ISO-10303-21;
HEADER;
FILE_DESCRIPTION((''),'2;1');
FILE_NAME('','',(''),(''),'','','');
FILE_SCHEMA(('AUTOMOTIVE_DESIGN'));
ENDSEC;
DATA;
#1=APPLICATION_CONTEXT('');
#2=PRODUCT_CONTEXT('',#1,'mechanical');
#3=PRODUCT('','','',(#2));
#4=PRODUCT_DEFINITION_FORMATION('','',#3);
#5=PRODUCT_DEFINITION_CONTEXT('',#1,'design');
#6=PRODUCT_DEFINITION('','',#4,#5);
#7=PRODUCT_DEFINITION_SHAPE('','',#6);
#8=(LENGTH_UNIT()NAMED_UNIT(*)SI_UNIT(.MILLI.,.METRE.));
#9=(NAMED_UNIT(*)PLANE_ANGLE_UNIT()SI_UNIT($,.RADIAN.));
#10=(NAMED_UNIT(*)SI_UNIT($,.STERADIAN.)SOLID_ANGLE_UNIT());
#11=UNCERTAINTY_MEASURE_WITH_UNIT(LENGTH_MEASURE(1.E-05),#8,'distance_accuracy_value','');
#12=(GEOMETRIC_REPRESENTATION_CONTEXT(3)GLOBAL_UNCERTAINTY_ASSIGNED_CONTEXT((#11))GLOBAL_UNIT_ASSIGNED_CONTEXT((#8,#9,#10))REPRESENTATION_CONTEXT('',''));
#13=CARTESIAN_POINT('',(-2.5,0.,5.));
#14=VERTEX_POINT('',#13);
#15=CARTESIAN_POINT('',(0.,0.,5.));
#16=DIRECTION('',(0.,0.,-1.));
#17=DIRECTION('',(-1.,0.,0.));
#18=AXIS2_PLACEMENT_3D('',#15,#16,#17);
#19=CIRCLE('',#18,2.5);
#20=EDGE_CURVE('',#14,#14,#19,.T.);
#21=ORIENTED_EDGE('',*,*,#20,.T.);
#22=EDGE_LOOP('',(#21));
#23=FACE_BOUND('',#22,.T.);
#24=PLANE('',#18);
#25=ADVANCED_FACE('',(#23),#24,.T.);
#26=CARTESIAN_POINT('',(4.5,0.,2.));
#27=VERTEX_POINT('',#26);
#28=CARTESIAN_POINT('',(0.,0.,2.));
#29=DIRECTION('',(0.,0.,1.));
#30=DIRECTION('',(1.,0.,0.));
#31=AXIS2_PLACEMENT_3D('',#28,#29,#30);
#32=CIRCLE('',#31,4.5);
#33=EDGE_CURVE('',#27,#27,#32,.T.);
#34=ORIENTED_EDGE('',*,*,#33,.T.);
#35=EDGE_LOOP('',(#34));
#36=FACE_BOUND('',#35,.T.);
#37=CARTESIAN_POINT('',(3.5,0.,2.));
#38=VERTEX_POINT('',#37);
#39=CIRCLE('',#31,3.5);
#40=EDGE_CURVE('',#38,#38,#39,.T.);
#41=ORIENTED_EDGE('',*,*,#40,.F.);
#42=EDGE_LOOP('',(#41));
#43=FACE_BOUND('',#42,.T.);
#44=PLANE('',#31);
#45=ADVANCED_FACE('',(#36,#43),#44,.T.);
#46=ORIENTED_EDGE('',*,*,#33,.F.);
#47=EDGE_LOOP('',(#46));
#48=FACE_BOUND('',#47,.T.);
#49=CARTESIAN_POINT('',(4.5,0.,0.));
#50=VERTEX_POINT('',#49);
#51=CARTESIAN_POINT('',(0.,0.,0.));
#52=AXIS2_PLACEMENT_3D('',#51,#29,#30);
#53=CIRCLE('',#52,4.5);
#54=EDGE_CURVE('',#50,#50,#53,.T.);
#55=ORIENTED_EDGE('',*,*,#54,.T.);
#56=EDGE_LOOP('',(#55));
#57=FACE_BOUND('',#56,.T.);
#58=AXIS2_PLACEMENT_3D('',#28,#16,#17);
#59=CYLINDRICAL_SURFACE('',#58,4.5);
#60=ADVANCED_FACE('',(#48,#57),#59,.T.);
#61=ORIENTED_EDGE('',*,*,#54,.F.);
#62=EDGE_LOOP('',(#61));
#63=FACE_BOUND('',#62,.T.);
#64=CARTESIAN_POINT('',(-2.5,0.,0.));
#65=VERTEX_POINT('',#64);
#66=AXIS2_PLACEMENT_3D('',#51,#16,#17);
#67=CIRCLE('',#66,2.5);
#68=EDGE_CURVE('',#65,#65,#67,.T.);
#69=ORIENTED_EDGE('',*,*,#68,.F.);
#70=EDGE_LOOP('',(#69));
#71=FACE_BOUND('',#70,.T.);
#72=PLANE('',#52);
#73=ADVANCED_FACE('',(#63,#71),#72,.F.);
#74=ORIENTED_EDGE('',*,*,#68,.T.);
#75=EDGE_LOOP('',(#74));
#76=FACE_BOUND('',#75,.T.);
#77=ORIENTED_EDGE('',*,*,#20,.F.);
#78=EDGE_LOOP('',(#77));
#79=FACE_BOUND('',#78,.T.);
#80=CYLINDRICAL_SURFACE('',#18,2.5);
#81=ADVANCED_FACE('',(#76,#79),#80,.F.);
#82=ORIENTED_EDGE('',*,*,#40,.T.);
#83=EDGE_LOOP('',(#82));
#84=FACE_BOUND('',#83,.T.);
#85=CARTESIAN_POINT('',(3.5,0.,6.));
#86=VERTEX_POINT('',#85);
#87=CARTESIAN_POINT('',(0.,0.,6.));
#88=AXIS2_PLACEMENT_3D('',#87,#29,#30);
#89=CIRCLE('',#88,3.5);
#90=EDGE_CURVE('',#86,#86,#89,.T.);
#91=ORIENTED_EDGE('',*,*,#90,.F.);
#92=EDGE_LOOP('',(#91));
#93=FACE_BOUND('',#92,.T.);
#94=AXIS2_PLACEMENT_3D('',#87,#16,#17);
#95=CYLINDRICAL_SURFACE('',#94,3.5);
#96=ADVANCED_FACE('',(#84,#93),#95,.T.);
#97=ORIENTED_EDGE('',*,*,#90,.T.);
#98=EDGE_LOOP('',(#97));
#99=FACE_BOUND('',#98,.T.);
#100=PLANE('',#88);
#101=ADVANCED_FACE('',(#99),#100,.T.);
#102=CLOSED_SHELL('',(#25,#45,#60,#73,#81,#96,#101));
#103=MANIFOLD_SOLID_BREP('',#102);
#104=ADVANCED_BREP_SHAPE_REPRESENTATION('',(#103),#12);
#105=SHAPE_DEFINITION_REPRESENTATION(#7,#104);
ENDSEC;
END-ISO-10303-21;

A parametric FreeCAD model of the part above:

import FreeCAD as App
import Part
import Sketcher
Q = App.Units.Quantity

doc = App.newDocument("Part")
params = doc.addObject("Spreadsheet::Sheet", "Params")
for row, (alias, value) in enumerate([
    ("sketch1_diameter", "9 mm"),
    ("pad1_length", "2 mm"),
    ("sketch2_diameter", "7 mm"),
    ("pad2_length", "4 mm"),
    ("sketch3_diameter", "5 mm"),
    ("pocket1_length", "5 mm"),
], start=1):
    params.set(f"A{row}", alias)
    params.set(f"B{row}", "=" + value)
    params.setAlias(f"B{row}", alias)

body = doc.addObject("PartDesign::Body", "Body")

# Sketch on XY plane
sketch1 = body.newObject("Sketcher::SketchObject", "Sketch")
sketch1.AttachmentSupport = (doc.getObject("XY_Plane"), [""])
sketch1.MapMode = "FlatFace"
sketch1.addGeometry(Part.Circle(App.Vector(0, 0, 0), App.Vector(0, 0, 1), 4.5), False)
sketch1.addConstraint(Sketcher.Constraint("Coincident", 0, 3, -1, 1))
sketch1.addConstraint(Sketcher.Constraint("Diameter", 0, Q("9 mm")))
sketch1.setExpression("Constraints[1]", "Params.sketch1_diameter")
pad1 = body.newObject("PartDesign::Pad", "Pad")
pad1.Profile = sketch1
pad1.setExpression("Length", "Params.pad1_length")

# Sketch on XY plane
sketch2 = body.newObject("Sketcher::SketchObject", "Sketch001")
sketch2.AttachmentSupport = (doc.getObject("XY_Plane"), [""])
sketch2.MapMode = "FlatFace"
sketch2.AttachmentOffset = App.Placement(App.Vector(0, 0, 2), App.Rotation())
sketch2.addGeometry(Part.Circle(App.Vector(0, 0, 0), App.Vector(0, 0, 1), 3.5), False)
sketch2.addConstraint(Sketcher.Constraint("Coincident", 0, 3, -1, 1))
sketch2.addConstraint(Sketcher.Constraint("Diameter", 0, Q("7 mm")))
sketch2.setExpression("Constraints[1]", "Params.sketch2_diameter")
pad2 = body.newObject("PartDesign::Pad", "Pad001")
pad2.Profile = sketch2
pad2.setExpression("Length", "Params.pad2_length")

# Sketch on XY plane
sketch3 = body.newObject("Sketcher::SketchObject", "Sketch002")
sketch3.AttachmentSupport = (doc.getObject("XY_Plane"), [""])
sketch3.MapMode = "FlatFace"
sketch3.addGeometry(Part.Circle(App.Vector(0, 0, 0), App.Vector(0, 0, 1), 2.5), False)
sketch3.addConstraint(Sketcher.Constraint("Coincident", 0, 3, -1, 1))
sketch3.addConstraint(Sketcher.Constraint("Diameter", 0, Q("5 mm")))
sketch3.setExpression("Constraints[1]", "Params.sketch3_diameter")
pocket1 = body.newObject("PartDesign::Pocket", "Pocket")
pocket1.Profile = sketch3
pocket1.setExpression("Length", "Params.pocket1_length")
pocket1.Reversed = True

doc.recompute()
